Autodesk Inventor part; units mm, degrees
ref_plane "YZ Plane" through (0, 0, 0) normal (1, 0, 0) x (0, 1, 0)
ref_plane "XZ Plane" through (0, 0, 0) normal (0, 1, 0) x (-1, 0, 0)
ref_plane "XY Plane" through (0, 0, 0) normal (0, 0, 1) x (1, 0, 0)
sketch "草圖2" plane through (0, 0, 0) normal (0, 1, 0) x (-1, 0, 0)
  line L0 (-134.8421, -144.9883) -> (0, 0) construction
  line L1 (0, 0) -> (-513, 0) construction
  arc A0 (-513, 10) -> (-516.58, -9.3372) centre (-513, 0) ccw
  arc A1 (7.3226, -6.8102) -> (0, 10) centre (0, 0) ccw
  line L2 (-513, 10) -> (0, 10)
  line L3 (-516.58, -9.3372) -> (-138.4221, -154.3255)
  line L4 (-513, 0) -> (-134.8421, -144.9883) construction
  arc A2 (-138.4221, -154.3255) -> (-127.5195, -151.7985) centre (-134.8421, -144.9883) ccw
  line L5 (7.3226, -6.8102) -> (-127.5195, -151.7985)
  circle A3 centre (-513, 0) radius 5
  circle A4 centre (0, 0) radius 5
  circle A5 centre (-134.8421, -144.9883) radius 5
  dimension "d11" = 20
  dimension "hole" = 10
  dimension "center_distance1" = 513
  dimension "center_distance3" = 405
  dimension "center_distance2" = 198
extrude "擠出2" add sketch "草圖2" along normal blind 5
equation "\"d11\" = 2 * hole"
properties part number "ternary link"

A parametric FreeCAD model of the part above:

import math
import FreeCAD as App
import Part
import Sketcher
Q = App.Units.Quantity

doc = App.newDocument("Part")
params = doc.addObject("Spreadsheet::Sheet", "Params")
for row, (alias, value) in enumerate([
    ("sketch1_diameter", "10 mm"),
    ("sketch1_radius", "10 mm"),
    ("sketch1_width", "513 mm"),
    ("sketch1_length", "405 mm"),
    ("sketch1_length2", "198 mm"),
    ("pad1_length", "5 mm"),
], start=1):
    params.set(f"A{row}", alias)
    params.set(f"B{row}", "=" + value)
    params.setAlias(f"B{row}", alias)

body = doc.addObject("PartDesign::Body", "Body")

sketch1 = body.newObject("Sketcher::SketchObject", "Sketch")
sketch1.AttachmentSupport = (doc.getObject("XZ_Plane"), [""])
sketch1.MapMode = "FlatFace"
sketch1.addGeometry([
    Part.LineSegment(App.Vector(0, 10, 0), App.Vector(513, 10, 0)),
    Part.ArcOfCircle(Part.Circle(App.Vector(513, 0, 0), App.Vector(0, 0, 1), 10), math.radians(-69), math.radians(90)),
    Part.LineSegment(App.Vector(517, -9, 0), App.Vector(138, -154, 0)),
    Part.ArcOfCircle(Part.Circle(App.Vector(135, -145, 0), App.Vector(0, 0, 1), 10), math.radians(-137), math.radians(-69)),
    Part.LineSegment(App.Vector(128, -152, 0), App.Vector(-7, -7, 0)),
    Part.ArcOfCircle(Part.Circle(App.Vector(0, 0, 0), App.Vector(0, 0, 1), 10), math.radians(90), math.radians(223)),
    Part.Circle(App.Vector(135, -145, 0), App.Vector(0, 0, 1), 5),
    Part.Circle(App.Vector(513, 0, 0), App.Vector(0, 0, 1), 5),
    Part.Circle(App.Vector(0, 0, 0), App.Vector(0, 0, 1), 5),
], False)
sketch1.addConstraint([
    Sketcher.Constraint("Tangent", 0, 2, 1, 2),
    Sketcher.Constraint("Tangent", 1, 1, 2, 1),
    Sketcher.Constraint("Tangent", 2, 2, 3, 2),
    Sketcher.Constraint("Tangent", 3, 1, 4, 1),
    Sketcher.Constraint("Tangent", 4, 2, 5, 2),
    Sketcher.Constraint("Tangent", 5, 1, 0, 1),
    Sketcher.Constraint("Horizontal", 0),
    Sketcher.Constraint("Coincident", 5, 3, -1, 1),
    Sketcher.Constraint("Coincident", 8, 3, -1, 1),
    Sketcher.Constraint("Coincident", 6, 3, 3, 3),
    Sketcher.Constraint("Coincident", 7, 3, 1, 3),
    Sketcher.Constraint("Equal", 1, 3),
    Sketcher.Constraint("Equal", 3, 5),
    Sketcher.Constraint("Equal", 6, 7),
    Sketcher.Constraint("Equal", 7, 8),
    Sketcher.Constraint("Diameter", 6, Q("10 mm")),
    Sketcher.Constraint("Radius", 1, Q("10 mm")),
    Sketcher.Constraint("DistanceX", 0, 1, 0, 2, Q("513 mm")),
    Sketcher.Constraint("Distance", 2, Q("405 mm")),
    Sketcher.Constraint("Distance", 4, Q("198 mm")),
])
sketch1.setExpression("Constraints[15]", "Params.sketch1_diameter")
sketch1.setExpression("Constraints[16]", "Params.sketch1_radius")
sketch1.setExpression("Constraints[17]", "Params.sketch1_width")
sketch1.setExpression("Constraints[18]", "Params.sketch1_length")
sketch1.setExpression("Constraints[19]", "Params.sketch1_length2")
pad1 = body.newObject("PartDesign::Pad", "Pad")
pad1.Profile = sketch1
pad1.setExpression("Length", "Params.pad1_length")
pad1.Reversed = True

doc.recompute()
